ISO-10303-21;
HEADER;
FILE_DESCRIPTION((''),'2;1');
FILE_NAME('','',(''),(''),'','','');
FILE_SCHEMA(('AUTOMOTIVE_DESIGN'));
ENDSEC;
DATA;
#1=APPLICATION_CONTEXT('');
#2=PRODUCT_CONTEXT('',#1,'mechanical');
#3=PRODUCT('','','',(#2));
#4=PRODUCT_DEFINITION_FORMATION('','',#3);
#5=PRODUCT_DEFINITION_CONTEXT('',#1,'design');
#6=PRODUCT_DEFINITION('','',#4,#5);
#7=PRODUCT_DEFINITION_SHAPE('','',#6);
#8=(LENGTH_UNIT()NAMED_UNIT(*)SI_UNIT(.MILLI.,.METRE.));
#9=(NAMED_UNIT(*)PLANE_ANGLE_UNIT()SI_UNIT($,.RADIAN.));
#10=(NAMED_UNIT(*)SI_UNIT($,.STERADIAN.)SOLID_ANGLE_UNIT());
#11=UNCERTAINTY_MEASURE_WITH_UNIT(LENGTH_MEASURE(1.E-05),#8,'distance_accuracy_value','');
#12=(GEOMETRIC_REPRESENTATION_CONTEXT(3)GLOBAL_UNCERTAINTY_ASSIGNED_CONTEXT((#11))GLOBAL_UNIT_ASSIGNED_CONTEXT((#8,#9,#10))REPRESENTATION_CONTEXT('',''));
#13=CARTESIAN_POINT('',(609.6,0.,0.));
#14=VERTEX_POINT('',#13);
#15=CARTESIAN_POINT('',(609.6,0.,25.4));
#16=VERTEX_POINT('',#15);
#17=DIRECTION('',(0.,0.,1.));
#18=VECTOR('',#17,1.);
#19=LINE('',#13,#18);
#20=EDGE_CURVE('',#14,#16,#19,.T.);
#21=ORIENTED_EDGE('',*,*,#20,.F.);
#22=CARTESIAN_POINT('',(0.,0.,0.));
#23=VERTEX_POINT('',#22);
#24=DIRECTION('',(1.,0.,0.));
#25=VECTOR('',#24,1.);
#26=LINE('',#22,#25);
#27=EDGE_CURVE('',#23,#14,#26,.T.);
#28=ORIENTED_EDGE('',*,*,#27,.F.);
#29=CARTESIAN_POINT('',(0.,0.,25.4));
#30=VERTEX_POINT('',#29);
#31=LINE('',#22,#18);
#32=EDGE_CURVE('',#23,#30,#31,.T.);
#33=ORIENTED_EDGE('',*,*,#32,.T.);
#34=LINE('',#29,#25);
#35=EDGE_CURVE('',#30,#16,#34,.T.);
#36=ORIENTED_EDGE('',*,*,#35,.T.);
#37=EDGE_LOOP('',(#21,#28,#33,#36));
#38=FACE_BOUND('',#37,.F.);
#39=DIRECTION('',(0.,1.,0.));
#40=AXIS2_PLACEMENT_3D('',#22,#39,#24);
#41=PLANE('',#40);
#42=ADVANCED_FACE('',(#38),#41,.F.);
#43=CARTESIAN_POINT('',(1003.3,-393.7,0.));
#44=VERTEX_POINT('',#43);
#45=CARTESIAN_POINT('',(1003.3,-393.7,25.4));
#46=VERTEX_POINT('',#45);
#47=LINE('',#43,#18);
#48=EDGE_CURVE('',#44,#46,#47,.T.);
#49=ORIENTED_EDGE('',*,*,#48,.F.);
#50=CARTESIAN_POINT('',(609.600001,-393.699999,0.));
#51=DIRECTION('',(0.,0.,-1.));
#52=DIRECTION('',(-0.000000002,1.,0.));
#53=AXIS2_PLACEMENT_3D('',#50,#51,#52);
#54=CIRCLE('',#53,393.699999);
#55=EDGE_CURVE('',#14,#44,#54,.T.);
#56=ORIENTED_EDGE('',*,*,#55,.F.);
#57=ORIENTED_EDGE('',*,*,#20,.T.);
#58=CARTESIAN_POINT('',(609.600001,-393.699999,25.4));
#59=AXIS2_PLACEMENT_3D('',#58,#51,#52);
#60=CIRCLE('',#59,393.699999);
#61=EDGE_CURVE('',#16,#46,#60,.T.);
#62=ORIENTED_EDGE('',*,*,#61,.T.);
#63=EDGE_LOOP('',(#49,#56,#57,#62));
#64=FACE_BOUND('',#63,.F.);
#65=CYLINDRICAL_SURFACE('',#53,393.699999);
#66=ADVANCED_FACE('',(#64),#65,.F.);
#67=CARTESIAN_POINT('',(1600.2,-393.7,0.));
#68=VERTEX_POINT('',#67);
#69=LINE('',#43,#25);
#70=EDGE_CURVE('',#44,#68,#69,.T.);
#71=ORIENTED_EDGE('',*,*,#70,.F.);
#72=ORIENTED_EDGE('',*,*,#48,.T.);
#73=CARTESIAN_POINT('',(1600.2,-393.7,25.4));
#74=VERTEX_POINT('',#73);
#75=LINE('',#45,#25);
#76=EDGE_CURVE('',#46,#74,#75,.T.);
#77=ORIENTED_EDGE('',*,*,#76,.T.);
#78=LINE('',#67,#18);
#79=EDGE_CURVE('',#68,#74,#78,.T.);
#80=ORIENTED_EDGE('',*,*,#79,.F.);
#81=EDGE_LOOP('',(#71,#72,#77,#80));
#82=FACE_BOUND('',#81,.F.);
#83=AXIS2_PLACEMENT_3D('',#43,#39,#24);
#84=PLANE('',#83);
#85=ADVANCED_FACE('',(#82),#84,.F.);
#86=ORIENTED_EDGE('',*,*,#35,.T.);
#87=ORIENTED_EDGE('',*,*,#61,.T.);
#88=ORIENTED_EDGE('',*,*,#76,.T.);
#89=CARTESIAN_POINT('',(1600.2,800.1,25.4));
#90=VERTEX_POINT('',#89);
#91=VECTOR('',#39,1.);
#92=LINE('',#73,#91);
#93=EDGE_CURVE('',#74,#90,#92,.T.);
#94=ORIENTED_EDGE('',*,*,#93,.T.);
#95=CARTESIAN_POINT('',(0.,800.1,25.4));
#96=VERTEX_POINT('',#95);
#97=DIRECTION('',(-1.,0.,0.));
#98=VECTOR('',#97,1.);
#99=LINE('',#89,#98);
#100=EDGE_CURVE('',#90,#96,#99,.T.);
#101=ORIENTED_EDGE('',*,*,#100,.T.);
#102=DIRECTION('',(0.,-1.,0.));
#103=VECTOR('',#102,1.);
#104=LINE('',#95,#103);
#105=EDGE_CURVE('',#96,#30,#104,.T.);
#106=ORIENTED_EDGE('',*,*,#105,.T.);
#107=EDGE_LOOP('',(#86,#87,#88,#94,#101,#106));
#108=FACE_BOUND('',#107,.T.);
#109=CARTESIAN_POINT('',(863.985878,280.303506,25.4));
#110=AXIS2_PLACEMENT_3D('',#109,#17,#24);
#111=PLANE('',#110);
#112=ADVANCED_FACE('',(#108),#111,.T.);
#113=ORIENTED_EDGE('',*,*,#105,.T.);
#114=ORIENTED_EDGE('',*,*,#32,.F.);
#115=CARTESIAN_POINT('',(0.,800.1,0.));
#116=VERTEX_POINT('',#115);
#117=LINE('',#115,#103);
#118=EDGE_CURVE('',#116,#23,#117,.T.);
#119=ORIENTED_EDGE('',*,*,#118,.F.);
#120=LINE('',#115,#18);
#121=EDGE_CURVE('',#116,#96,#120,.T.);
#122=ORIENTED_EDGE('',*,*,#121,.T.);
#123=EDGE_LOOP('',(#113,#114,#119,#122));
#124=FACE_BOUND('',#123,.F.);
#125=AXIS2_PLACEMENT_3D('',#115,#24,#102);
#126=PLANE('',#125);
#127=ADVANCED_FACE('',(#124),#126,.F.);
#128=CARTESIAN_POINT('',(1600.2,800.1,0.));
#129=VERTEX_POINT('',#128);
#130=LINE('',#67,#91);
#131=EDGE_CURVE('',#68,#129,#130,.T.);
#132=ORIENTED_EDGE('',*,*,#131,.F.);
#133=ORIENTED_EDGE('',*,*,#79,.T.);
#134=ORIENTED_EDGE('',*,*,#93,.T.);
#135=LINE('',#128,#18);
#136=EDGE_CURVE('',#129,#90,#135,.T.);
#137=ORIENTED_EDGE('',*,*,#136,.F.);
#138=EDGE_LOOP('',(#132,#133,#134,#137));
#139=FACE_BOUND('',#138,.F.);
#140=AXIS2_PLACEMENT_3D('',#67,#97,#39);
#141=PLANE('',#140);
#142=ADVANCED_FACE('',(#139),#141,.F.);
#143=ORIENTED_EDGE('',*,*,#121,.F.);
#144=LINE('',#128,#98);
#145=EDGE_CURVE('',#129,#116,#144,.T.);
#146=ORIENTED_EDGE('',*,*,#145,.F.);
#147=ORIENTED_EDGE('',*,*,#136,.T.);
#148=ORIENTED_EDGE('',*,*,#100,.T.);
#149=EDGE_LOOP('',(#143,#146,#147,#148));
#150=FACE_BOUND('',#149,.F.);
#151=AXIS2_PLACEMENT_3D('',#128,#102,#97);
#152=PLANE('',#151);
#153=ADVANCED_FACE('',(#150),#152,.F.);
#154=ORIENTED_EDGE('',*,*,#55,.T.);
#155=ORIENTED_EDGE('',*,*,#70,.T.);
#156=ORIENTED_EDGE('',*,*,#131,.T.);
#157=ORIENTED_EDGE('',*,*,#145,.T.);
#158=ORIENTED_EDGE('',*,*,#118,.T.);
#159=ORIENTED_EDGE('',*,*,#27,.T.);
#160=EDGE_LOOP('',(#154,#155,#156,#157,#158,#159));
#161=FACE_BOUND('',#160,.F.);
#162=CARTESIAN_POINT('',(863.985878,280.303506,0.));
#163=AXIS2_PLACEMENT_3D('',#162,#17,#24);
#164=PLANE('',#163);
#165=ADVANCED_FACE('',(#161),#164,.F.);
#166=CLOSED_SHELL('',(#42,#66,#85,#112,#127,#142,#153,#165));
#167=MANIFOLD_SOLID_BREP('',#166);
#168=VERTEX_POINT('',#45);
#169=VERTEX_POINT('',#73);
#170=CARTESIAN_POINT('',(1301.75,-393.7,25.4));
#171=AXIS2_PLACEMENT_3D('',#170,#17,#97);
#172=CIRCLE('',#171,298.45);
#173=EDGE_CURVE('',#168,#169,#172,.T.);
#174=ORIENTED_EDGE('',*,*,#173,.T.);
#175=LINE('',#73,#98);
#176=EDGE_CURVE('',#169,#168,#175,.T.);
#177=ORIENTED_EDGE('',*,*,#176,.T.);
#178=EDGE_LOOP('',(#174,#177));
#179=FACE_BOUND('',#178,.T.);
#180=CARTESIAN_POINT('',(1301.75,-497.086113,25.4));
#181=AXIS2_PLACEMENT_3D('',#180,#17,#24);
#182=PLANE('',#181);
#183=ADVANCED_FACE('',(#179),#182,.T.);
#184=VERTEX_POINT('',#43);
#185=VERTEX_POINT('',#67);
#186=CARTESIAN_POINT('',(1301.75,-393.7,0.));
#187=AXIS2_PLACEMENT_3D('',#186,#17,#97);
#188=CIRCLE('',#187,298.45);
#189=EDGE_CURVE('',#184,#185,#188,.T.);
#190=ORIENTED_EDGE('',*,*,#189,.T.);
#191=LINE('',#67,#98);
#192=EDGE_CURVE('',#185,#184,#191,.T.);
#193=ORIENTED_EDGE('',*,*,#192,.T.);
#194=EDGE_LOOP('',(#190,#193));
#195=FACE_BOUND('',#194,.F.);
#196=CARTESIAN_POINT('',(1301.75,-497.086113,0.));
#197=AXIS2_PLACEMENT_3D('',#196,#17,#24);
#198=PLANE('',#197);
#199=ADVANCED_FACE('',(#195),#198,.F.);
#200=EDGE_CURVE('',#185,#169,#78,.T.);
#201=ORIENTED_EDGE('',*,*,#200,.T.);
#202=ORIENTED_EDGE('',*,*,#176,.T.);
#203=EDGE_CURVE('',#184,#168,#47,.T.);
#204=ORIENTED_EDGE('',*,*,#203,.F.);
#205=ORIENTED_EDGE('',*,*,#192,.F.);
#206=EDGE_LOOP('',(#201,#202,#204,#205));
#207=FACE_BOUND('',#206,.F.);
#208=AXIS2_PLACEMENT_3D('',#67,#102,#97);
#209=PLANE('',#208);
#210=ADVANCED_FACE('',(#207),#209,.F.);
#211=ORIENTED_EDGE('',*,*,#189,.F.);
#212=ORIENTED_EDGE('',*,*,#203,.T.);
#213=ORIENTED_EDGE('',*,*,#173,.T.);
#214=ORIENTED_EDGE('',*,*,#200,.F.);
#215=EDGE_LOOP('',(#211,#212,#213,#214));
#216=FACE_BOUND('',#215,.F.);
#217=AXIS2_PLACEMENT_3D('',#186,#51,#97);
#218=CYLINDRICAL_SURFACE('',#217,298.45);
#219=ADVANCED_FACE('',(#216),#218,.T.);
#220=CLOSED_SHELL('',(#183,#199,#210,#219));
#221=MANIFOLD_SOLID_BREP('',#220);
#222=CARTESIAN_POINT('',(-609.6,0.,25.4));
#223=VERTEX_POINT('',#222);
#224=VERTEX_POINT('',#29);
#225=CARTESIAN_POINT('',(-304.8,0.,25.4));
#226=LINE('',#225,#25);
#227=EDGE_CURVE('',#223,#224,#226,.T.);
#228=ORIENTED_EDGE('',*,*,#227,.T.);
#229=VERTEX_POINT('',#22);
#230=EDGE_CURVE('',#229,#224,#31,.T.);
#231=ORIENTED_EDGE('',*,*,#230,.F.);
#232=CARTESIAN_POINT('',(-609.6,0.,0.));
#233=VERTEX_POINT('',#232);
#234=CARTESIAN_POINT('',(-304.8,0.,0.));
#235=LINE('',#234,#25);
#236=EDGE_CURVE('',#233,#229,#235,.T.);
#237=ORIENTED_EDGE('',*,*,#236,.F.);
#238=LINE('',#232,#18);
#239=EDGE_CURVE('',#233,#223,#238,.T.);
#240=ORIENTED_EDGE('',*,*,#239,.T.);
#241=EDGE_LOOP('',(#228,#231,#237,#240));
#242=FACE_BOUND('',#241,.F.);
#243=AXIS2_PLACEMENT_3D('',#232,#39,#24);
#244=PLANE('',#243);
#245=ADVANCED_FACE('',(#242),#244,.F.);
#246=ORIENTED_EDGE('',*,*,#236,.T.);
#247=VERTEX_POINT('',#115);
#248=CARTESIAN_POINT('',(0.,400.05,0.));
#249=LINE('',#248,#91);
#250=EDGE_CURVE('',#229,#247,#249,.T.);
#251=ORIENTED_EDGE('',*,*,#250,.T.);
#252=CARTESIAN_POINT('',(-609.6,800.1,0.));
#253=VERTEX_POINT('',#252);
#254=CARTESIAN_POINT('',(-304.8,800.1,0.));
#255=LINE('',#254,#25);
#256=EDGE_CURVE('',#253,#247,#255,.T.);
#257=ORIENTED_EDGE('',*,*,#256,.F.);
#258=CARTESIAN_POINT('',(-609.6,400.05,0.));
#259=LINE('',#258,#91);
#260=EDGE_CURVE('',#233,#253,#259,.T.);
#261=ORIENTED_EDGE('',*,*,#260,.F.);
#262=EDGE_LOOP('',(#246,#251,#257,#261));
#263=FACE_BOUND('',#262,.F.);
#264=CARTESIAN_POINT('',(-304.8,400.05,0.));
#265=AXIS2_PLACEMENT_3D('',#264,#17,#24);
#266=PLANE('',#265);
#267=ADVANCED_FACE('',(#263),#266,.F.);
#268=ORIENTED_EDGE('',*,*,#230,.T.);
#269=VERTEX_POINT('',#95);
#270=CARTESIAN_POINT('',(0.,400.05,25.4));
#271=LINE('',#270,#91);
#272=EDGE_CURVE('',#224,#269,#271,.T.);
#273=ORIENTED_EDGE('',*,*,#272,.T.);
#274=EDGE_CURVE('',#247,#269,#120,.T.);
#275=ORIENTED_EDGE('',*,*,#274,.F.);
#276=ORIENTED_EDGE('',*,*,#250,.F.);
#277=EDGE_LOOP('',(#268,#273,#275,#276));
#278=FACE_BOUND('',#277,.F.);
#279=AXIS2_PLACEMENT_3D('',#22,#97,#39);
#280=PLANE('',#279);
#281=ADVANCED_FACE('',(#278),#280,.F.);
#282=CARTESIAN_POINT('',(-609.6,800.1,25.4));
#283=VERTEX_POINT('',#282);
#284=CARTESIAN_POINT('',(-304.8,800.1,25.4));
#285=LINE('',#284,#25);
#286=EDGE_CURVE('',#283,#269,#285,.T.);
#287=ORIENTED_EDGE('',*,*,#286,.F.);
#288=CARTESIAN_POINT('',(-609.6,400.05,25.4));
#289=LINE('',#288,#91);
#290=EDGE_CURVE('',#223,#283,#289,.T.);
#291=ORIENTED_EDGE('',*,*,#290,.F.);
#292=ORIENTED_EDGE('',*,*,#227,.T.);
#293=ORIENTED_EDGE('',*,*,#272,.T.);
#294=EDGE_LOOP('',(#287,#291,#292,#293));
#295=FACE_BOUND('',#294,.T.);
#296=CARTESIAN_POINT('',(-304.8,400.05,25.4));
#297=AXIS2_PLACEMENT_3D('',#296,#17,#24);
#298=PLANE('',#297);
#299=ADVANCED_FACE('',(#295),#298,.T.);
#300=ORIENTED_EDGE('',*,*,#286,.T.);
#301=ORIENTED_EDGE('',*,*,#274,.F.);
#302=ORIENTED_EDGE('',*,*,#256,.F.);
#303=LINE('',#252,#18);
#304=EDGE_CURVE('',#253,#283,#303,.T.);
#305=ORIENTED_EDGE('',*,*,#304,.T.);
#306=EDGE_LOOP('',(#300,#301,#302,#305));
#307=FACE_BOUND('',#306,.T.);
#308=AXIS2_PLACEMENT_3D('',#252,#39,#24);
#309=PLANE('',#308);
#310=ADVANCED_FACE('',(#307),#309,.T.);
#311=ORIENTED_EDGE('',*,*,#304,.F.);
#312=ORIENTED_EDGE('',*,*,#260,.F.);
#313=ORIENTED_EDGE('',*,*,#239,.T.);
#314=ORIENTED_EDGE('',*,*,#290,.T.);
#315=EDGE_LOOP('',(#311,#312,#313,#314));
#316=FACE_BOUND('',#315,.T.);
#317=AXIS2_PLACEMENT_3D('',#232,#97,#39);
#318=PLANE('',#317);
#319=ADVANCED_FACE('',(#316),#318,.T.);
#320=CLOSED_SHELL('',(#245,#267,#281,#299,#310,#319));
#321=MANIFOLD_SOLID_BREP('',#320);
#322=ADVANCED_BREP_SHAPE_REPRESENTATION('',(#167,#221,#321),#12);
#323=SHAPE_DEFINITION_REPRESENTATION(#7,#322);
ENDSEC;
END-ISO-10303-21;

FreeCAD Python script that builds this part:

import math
import FreeCAD as App
import Part
import Sketcher

V = App.Vector
Q = App.Units.Quantity


def add_polygon(sketch, points):
    """Adds a closed chain of lines whose ends are joined by coincident constraints."""
    first, n = sketch.GeometryCount, len(points)
    for a, b in zip(points, points[1:] + points[:1]):
        sketch.addGeometry(Part.LineSegment(App.Vector(*a, 0), App.Vector(*b, 0)), False)
    for i in range(n):
        sketch.addConstraint(Sketcher.Constraint("Coincident", first + i, 2, first + (i + 1) % n, 1))

doc = App.newDocument("Part")
body = doc.addObject("PartDesign::Body", "Body")

sketch1 = body.newObject("Sketcher::SketchObject", "Sketch")
sketch1.AttachmentSupport = (doc.getObject("XY_Plane"), [""])
sketch1.MapMode = "FlatFace"
add_polygon(sketch1, [(-610, 800), (-610, 0), (0, 0), (0, 800)])
sketch1.addConstraint([
    Sketcher.Constraint("Vertical", 0),
    Sketcher.Constraint("Horizontal", 1),
    Sketcher.Constraint("Vertical", 2),
    Sketcher.Constraint("Horizontal", 3),
    Sketcher.Constraint("Coincident", 1, 2, -1, 1),
    Sketcher.Constraint("DistanceX", 1, 1, 1, 2, Q("24 in")),
    Sketcher.Constraint("DistanceY", 0, 2, 0, 1, Q("31.5 in")),
])
pad1 = body.newObject("PartDesign::Pad", "Pad")
pad1.Profile = sketch1
pad1.Length = Q("1 in")
body2 = doc.addObject("PartDesign::Body", "Body001")

sketch2 = body2.newObject("Sketcher::SketchObject", "Sketch001")
sketch2.AttachmentSupport = (doc.getObject("XY_Plane001"), [""])
sketch2.MapMode = "FlatFace"
sketch2.addGeometry([
    Part.LineSegment(V(1600, 800, 0), V(0, 800, 0)),
    Part.LineSegment(V(0, 800, 0), V(0, 0, 0)),
    Part.LineSegment(V(0, 0, 0), V(610, 0, 0)),
    Part.ArcOfCircle(Part.Circle(V(610, -394, 0), V(0, 0, 1), 394), math.radians(0), math.radians(90)),
    Part.LineSegment(V(1003, -394, 0), V(1600, -394, 0)),
    Part.LineSegment(V(1600, -394, 0), V(1600, 800, 0)),
], False)
sketch2.addConstraint([
    Sketcher.Constraint("Coincident", 0, 2, 1, 1),
    Sketcher.Constraint("Coincident", 1, 2, 2, 1),
    Sketcher.Constraint("Tangent", 2, 2, 3, 2),
    Sketcher.Constraint("Coincident", 3, 1, 4, 1),
    Sketcher.Constraint("Coincident", 4, 2, 5, 1),
    Sketcher.Constraint("Coincident", 5, 2, 0, 1),
    Sketcher.Constraint("Horizontal", 0),
    Sketcher.Constraint("Vertical", 1),
    Sketcher.Constraint("Horizontal", 2),
    Sketcher.Constraint("Horizontal", 4),
    Sketcher.Constraint("Vertical", 5),
    Sketcher.Constraint("Coincident", 1, 2, -1, 1),
    Sketcher.Constraint("Radius", 3, Q("15.5 in")),
    Sketcher.Constraint("DistanceX", 0, 2, 0, 1, Q("63 in")),
    Sketcher.Constraint("DistanceX", 2, 1, 2, 2, Q("24 in")),
    Sketcher.Constraint("DistanceY", 5, 1, 5, 2, Q("47 in")),
    Sketcher.Constraint("DistanceY", 1, 2, 1, 1, Q("31.5 in")),
])
pad2 = body2.newObject("PartDesign::Pad", "Pad001")
pad2.Profile = sketch2
pad2.Length = Q("1 in")
body3 = doc.addObject("PartDesign::Body", "Body002")

sketch3 = body3.newObject("Sketcher::SketchObject", "Sketch002")
sketch3.AttachmentSupport = (doc.getObject("XY_Plane002"), [""])
sketch3.MapMode = "FlatFace"
sketch3.addGeometry([
    Part.ArcOfCircle(Part.Circle(V(1302, -394, 0), V(0, 0, 1), 298), math.radians(180), math.radians(360)),
    Part.LineSegment(V(1600, -394, 0), V(1003, -394, 0)),
], False)
sketch3.addConstraint([
    Sketcher.Constraint("Coincident", 0, 1, 1, 2),
    Sketcher.Constraint("Coincident", 1, 1, 0, 2),
    Sketcher.Constraint("Horizontal", 1),
    Sketcher.Constraint("Radius", 0, Q("11.75 in")),
    Sketcher.Constraint("DistanceX", -1, 1, 1, 1, Q("63 in")),
    Sketcher.Constraint("DistanceY", 0, 3, -1, 1, Q("15.5 in")),
    Sketcher.Constraint("DistanceY", 0, 1, -1, 1, Q("15.5 in")),
])
pad3 = body3.newObject("PartDesign::Pad", "Pad002")
pad3.Profile = sketch3
pad3.Length = Q("1 in")

doc.recompute()
